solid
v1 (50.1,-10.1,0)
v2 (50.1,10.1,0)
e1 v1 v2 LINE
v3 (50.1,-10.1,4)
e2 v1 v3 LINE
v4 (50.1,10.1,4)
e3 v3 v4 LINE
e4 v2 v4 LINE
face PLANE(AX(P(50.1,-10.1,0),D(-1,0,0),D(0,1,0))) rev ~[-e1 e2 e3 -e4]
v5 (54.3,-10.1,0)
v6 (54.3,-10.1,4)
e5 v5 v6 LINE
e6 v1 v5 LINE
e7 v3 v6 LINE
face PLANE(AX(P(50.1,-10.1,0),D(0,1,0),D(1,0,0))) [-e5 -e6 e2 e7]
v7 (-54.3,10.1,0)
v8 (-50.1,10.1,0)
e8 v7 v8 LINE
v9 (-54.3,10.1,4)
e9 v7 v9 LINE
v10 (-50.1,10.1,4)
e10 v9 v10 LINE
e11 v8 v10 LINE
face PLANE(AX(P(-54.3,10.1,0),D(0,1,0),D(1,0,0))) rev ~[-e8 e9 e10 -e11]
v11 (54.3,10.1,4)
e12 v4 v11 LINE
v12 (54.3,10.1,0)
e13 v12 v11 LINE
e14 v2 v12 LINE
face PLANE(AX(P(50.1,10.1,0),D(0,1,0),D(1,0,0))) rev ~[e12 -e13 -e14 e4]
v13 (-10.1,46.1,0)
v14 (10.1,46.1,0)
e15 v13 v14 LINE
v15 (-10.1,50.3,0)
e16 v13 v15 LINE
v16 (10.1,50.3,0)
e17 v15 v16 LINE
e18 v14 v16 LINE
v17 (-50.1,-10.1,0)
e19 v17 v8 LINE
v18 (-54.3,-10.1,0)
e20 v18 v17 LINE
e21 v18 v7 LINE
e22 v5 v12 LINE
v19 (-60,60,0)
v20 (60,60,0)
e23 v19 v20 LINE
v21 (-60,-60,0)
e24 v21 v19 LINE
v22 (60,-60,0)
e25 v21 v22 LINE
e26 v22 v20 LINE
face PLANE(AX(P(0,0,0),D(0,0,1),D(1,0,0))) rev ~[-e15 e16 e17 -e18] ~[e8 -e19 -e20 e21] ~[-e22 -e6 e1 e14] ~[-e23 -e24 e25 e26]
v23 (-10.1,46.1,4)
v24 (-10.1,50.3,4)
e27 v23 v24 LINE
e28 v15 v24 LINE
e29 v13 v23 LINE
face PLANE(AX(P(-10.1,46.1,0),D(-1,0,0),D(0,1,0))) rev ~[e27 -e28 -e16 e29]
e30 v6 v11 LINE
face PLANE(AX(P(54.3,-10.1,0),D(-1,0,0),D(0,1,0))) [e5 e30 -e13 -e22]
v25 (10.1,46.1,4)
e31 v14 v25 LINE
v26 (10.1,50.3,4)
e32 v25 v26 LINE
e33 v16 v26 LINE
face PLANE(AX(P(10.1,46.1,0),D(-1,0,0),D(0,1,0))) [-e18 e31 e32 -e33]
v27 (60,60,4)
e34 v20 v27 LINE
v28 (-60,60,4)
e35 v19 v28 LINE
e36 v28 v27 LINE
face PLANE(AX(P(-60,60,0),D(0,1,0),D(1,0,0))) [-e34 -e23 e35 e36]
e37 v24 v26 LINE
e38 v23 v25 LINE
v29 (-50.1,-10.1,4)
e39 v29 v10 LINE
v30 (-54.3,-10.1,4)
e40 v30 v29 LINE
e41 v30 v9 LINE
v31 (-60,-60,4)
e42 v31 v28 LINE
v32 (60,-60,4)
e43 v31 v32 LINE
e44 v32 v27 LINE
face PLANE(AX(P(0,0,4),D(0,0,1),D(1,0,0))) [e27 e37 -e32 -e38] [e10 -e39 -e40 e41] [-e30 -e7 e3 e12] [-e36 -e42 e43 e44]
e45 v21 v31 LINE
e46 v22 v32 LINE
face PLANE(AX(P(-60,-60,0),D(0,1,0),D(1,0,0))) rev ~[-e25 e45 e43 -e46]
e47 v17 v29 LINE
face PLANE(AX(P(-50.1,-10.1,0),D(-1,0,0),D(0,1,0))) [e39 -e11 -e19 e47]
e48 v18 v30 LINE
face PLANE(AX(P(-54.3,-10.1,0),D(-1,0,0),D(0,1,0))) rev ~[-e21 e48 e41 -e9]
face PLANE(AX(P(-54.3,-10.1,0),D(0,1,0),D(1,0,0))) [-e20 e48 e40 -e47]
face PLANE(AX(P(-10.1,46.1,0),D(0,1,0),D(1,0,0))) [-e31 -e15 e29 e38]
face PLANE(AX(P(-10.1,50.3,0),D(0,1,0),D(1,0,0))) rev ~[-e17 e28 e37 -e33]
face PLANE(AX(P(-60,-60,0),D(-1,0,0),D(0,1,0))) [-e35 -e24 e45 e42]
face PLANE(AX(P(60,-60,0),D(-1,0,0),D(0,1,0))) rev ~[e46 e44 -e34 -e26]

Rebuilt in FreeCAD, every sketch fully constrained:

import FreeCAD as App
import Part
import Sketcher

V = App.Vector

doc = App.newDocument("Part")
body = doc.addObject("PartDesign::Body", "Body")

sketch1 = body.newObject("Sketcher::SketchObject", "Sketch")
sketch1.AttachmentSupport = (doc.getObject("XY_Plane"), [""])
sketch1.MapMode = "FlatFace"
sketch1.addGeometry(Part.LineSegment(V(-60, 60, 0), V(-60, -60, 0)), False)
sketch1.addGeometry(Part.LineSegment(V(-60, -60, 0), V(60, -60, 0)), False)
sketch1.addGeometry(Part.LineSegment(V(60, -60, 0), V(60, 60, 0)), False)
sketch1.addGeometry(Part.LineSegment(V(60, 60, 0), V(-60, 60, 0)), False)
sketch1.addGeometry(Part.LineSegment(V(-50.1, -10.1, 0), V(-54.3, -10.1, 0)), False)
sketch1.addGeometry(Part.LineSegment(V(-54.3, -10.1, 0), V(-54.3, 10.1, 0)), False)
sketch1.addGeometry(Part.LineSegment(V(-54.3, 10.1, 0), V(-50.1, 10.1, 0)), False)
sketch1.addGeometry(Part.LineSegment(V(-50.1, 10.1, 0), V(-50.1, -10.1, 0)), False)
sketch1.addGeometry(Part.LineSegment(V(54.3, -10.1, 0), V(50.1, -10.1, 0)), False)
sketch1.addGeometry(Part.LineSegment(V(50.1, -10.1, 0), V(50.1, 10.1, 0)), False)
sketch1.addGeometry(Part.LineSegment(V(50.1, 10.1, 0), V(54.3, 10.1, 0)), False)
sketch1.addGeometry(Part.LineSegment(V(54.3, 10.1, 0), V(54.3, -10.1, 0)), False)
sketch1.addGeometry(Part.LineSegment(V(10.1, 46.1, 0), V(-10.1, 46.1, 0)), False)
sketch1.addGeometry(Part.LineSegment(V(-10.1, 46.1, 0), V(-10.1, 50.3, 0)), False)
sketch1.addGeometry(Part.LineSegment(V(-10.1, 50.3, 0), V(10.1, 50.3, 0)), False)
sketch1.addGeometry(Part.LineSegment(V(10.1, 50.3, 0), V(10.1, 46.1, 0)), False)
sketch1.addConstraint(Sketcher.Constraint("Coincident", 0, 2, 1, 1))
sketch1.addConstraint(Sketcher.Constraint("Coincident", 1, 2, 2, 1))
sketch1.addConstraint(Sketcher.Constraint("Coincident", 2, 2, 3, 1))
sketch1.addConstraint(Sketcher.Constraint("Coincident", 3, 2, 0, 1))
sketch1.addConstraint(Sketcher.Constraint("Coincident", 4, 2, 5, 1))
sketch1.addConstraint(Sketcher.Constraint("Coincident", 5, 2, 6, 1))
sketch1.addConstraint(Sketcher.Constraint("Coincident", 6, 2, 7, 1))
sketch1.addConstraint(Sketcher.Constraint("Coincident", 7, 2, 4, 1))
sketch1.addConstraint(Sketcher.Constraint("Coincident", 8, 2, 9, 1))
sketch1.addConstraint(Sketcher.Constraint("Coincident", 9, 2, 10, 1))
sketch1.addConstraint(Sketcher.Constraint("Coincident", 10, 2, 11, 1))
sketch1.addConstraint(Sketcher.Constraint("Coincident", 11, 2, 8, 1))
sketch1.addConstraint(Sketcher.Constraint("Coincident", 12, 2, 13, 1))
sketch1.addConstraint(Sketcher.Constraint("Coincident", 13, 2, 14, 1))
sketch1.addConstraint(Sketcher.Constraint("Coincident", 14, 2, 15, 1))
sketch1.addConstraint(Sketcher.Constraint("Coincident", 15, 2, 12, 1))
sketch1.addConstraint(Sketcher.Constraint("Vertical", 0))
sketch1.addConstraint(Sketcher.Constraint("Horizontal", 1))
sketch1.addConstraint(Sketcher.Constraint("Vertical", 2))
sketch1.addConstraint(Sketcher.Constraint("Horizontal", 3))
sketch1.addConstraint(Sketcher.Constraint("Horizontal", 4))
sketch1.addConstraint(Sketcher.Constraint("Vertical", 5))
sketch1.addConstraint(Sketcher.Constraint("Horizontal", 6))
sketch1.addConstraint(Sketcher.Constraint("Vertical", 7))
sketch1.addConstraint(Sketcher.Constraint("Horizontal", 8))
sketch1.addConstraint(Sketcher.Constraint("Vertical", 9))
sketch1.addConstraint(Sketcher.Constraint("Horizontal", 10))
sketch1.addConstraint(Sketcher.Constraint("Vertical", 11))
sketch1.addConstraint(Sketcher.Constraint("Horizontal", 12))
sketch1.addConstraint(Sketcher.Constraint("Vertical", 13))
sketch1.addConstraint(Sketcher.Constraint("Horizontal", 14))
sketch1.addConstraint(Sketcher.Constraint("Vertical", 15))
sketch1.addConstraint(Sketcher.Constraint("Symmetric", 0, 2, 2, 2, -1, 1))
sketch1.addConstraint(Sketcher.Constraint("Symmetric", 6, 2, 8, 2, -1, 1))
sketch1.addConstraint(Sketcher.Constraint("Symmetric", 4, 2, 10, 2, -1, 1))
sketch1.addConstraint(Sketcher.Constraint("Horizontal", 7, 2, 8, 2))
sketch1.addConstraint(Sketcher.Constraint("Equal", 3, 0))
sketch1.addConstraint(Sketcher.Constraint("Equal", 14, 5))
sketch1.addConstraint(Sketcher.Constraint("Equal", 10, 13))
sketch1.addConstraint(Sketcher.Constraint("DistanceX", 1, 1, 1, 2, 120.0))
sketch1.addConstraint(Sketcher.Constraint("DistanceX", 4, 2, 4, 1, 4.2))
sketch1.addConstraint(Sketcher.Constraint("DistanceX", 12, 2, 12, 1, 20.2))
sketch1.addConstraint(Sketcher.Constraint("DistanceX", 6, 2, 12, 2, 40.0))
sketch1.addConstraint(Sketcher.Constraint("DistanceY", 6, 2, 12, 2, 36.0))
sketch1.addConstraint(Sketcher.Constraint("DistanceX", 14, 2, 9, 2, 40.0))
pad1 = body.newObject("PartDesign::Pad", "Pad")
pad1.Profile = sketch1
pad1.Length = 4

doc.recompute()
